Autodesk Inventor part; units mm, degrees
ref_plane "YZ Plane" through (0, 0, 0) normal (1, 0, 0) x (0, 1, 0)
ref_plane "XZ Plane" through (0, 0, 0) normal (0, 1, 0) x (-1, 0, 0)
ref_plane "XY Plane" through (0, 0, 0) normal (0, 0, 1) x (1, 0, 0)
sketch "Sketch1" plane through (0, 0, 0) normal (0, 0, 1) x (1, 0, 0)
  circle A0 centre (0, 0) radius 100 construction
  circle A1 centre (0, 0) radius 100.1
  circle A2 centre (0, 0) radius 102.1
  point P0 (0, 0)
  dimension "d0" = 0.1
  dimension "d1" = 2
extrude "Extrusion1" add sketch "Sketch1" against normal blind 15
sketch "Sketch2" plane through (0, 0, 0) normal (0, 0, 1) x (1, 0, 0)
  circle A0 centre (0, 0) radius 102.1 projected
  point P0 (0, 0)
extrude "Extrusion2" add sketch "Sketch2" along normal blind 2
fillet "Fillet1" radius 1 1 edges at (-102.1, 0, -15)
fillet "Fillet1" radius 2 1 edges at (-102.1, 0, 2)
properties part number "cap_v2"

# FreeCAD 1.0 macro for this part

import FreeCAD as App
import Part
import Sketcher
from FreeCAD import Vector


def edges_at(feature, points):
    """Names of the edges that pass closest to the given points."""
    edges = feature.Shape.Edges
    near = lambda p: min(range(len(edges)), key=lambda i: edges[i].distToShape(Part.Vertex(*p))[0])
    return sorted({f"Edge{near(p) + 1}" for p in points})

doc = App.newDocument("Part")
body = doc.addObject("PartDesign::Body", "Body")

sketch1 = body.newObject("Sketcher::SketchObject", "Sketch")
sketch1.AttachmentSupport = (doc.getObject("XY_Plane"), [""])
sketch1.MapMode = "FlatFace"
sketch1.addGeometry([
    Part.Circle(Vector(0, 0, 0), Vector(0, 0, 1), 102.1),
    Part.Circle(Vector(0, 0, 0), Vector(0, 0, 1), 100.1),
], False)
sketch1.addConstraint([
    Sketcher.Constraint("Coincident", 0, 3, -1, 1),
    Sketcher.Constraint("Coincident", 1, 3, -1, 1),
    Sketcher.Constraint("Diameter", 0, 204.2),
    Sketcher.Constraint("Diameter", 1, 200.2),
])
pad1 = body.newObject("PartDesign::Pad", "Pad")
pad1.Profile = sketch1
pad1.Length = 15
pad1.Reversed = True

sketch2 = body.newObject("Sketcher::SketchObject", "Sketch001")
sketch2.AttachmentSupport = (doc.getObject("XY_Plane"), [""])
sketch2.MapMode = "FlatFace"
sketch2.addGeometry(Part.Circle(Vector(0, 0, 0), Vector(0, 0, 1), 102.1), False)
sketch2.addConstraint([
    Sketcher.Constraint("Coincident", 0, 3, -1, 1),
    Sketcher.Constraint("Diameter", 0, 204.2),
])
pad2 = body.newObject("PartDesign::Pad", "Pad001")
pad2.Profile = sketch2
pad2.Length = 2
doc.recompute()

fillet = body.newObject("PartDesign::Fillet", "Fillet")
fillet.Base = (pad2, edges_at(pad2, [(-102.1, 0, -15)]))
fillet.Radius = 1
doc.recompute()

fillet2 = body.newObject("PartDesign::Fillet", "Fillet001")
fillet2.Base = (fillet, edges_at(fillet, [(-102.1, 0, 2)]))
fillet2.Radius = 2

doc.recompute()
